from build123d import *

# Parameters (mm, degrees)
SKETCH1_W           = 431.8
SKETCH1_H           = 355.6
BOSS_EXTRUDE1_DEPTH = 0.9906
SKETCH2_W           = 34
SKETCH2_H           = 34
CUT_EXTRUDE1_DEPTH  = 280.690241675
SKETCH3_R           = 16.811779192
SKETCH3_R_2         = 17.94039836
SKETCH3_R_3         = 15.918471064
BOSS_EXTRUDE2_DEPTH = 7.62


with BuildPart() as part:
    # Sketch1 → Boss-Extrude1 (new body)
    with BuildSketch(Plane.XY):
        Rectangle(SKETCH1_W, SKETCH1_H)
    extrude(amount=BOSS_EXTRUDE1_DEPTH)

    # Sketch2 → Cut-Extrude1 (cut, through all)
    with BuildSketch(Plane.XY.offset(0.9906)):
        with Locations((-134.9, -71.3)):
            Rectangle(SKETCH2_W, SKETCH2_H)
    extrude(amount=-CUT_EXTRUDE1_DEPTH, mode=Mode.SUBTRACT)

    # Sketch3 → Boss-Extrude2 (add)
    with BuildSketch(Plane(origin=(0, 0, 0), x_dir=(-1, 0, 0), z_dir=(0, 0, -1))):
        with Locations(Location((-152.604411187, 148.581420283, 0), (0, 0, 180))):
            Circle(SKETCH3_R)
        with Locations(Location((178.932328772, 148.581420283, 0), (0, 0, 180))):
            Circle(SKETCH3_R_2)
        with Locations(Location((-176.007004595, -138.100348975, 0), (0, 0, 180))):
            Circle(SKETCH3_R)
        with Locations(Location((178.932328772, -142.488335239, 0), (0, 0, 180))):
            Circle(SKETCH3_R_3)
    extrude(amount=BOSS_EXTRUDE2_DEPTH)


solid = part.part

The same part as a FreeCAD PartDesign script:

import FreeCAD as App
import Part
import Sketcher
Q = App.Units.Quantity


def add_polygon(sketch, points):
    """Adds a closed chain of lines whose ends are joined by coincident constraints."""
    first, n = sketch.GeometryCount, len(points)
    for a, b in zip(points, points[1:] + points[:1]):
        sketch.addGeometry(Part.LineSegment(App.Vector(*a, 0), App.Vector(*b, 0)), False)
    for i in range(n):
        sketch.addConstraint(Sketcher.Constraint("Coincident", first + i, 2, first + (i + 1) % n, 1))

doc = App.newDocument("Part")
body = doc.addObject("PartDesign::Body", "Body")

# Sketch on XY plane
sketch1 = body.newObject("Sketcher::SketchObject", "Sketch")
sketch1.AttachmentSupport = (doc.getObject("XY_Plane"), [""])
sketch1.MapMode = "FlatFace"
add_polygon(sketch1, [(-216, 178), (-216, -178), (216, -178), (216, 178)])  # lines 0-3
sketch1.addConstraint([
    Sketcher.Constraint("Vertical", 0),
    Sketcher.Constraint("Horizontal", 1),
    Sketcher.Constraint("Vertical", 2),
    Sketcher.Constraint("Horizontal", 3),
    Sketcher.Constraint("Symmetric", 0, 2, 2, 2, -1, 1),
    Sketcher.Constraint("DistanceX", 1, 1, 1, 2, Q("17 in")),
    Sketcher.Constraint("DistanceY", 0, 2, 0, 1, Q("14 in")),
])
pad1 = body.newObject("PartDesign::Pad", "Pad")
pad1.Profile = sketch1
pad1.Length = Q("0.039 in")

# Sketch on XY plane
sketch2 = body.newObject("Sketcher::SketchObject", "Sketch001")
sketch2.AttachmentSupport = (doc.getObject("XY_Plane"), [""])
sketch2.MapMode = "FlatFace"
sketch2.AttachmentOffset = App.Placement(App.Vector(0, 0, 0.039 * 25.4), App.Rotation())
add_polygon(sketch2, [(-152, -54), (-152, -88), (-118, -88), (-118, -54)])  # lines 0-3
sketch2.addConstraint([
    Sketcher.Constraint("Vertical", 0),
    Sketcher.Constraint("Horizontal", 1),
    Sketcher.Constraint("Vertical", 2),
    Sketcher.Constraint("Horizontal", 3),
    Sketcher.Constraint("Equal", 3, 0),
    Sketcher.Constraint("DistanceX", 1, 1, 1, 2, 34.0),
    Sketcher.Constraint("DistanceX", 0, 2, -1, 1, 151.9),
    Sketcher.Constraint("DistanceY", 0, 2, -1, 1, 88.3),
])
pocket1 = body.newObject("PartDesign::Pocket", "Pocket")
pocket1.Profile = sketch2
pocket1.Type = "ThroughAll"

# Sketch on XY plane
sketch3 = body.newObject("Sketcher::SketchObject", "Sketch002")
sketch3.AttachmentSupport = (doc.getObject("XY_Plane"), [""])
sketch3.MapMode = "FlatFace"
sketch3.addGeometry([
    Part.Circle(App.Vector(153, 149, 0), App.Vector(0, 0, 1), 17),
    Part.Circle(App.Vector(-179, 149, 0), App.Vector(0, 0, 1), 18),
    Part.Circle(App.Vector(176, -138, 0), App.Vector(0, 0, 1), 17),
    Part.Circle(App.Vector(-179, -142, 0), App.Vector(0, 0, 1), 16),
], False)
sketch3.addConstraint([
    Sketcher.Constraint("Equal", 0, 2),
    Sketcher.Constraint("Horizontal", 0, 3, 1, 3),
    Sketcher.Constraint("Vertical", 1, 3, 3, 3),
    Sketcher.Constraint("Diameter", 0, 33.623558),
    Sketcher.Constraint("Diameter", 1, 35.880797),
    Sketcher.Constraint("Diameter", 3, 31.836942),
    Sketcher.Constraint("DistanceX", -1, 1, 0, 3, 152.604411),
    Sketcher.Constraint("DistanceY", -1, 1, 0, 3, 148.58142),
    Sketcher.Constraint("DistanceX", 1, 3, -1, 1, 178.932329),
    Sketcher.Constraint("DistanceY", 2, 3, -1, 1, 138.100349),
    Sketcher.Constraint("DistanceX", -1, 1, 2, 3, 176.007005),
    Sketcher.Constraint("DistanceY", 3, 3, -1, 1, 142.488335),
])
pad2 = body.newObject("PartDesign::Pad", "Pad001")
pad2.Profile = sketch3
pad2.Length = Q("0.3 in")
pad2.Reversed = True

doc.recompute()
